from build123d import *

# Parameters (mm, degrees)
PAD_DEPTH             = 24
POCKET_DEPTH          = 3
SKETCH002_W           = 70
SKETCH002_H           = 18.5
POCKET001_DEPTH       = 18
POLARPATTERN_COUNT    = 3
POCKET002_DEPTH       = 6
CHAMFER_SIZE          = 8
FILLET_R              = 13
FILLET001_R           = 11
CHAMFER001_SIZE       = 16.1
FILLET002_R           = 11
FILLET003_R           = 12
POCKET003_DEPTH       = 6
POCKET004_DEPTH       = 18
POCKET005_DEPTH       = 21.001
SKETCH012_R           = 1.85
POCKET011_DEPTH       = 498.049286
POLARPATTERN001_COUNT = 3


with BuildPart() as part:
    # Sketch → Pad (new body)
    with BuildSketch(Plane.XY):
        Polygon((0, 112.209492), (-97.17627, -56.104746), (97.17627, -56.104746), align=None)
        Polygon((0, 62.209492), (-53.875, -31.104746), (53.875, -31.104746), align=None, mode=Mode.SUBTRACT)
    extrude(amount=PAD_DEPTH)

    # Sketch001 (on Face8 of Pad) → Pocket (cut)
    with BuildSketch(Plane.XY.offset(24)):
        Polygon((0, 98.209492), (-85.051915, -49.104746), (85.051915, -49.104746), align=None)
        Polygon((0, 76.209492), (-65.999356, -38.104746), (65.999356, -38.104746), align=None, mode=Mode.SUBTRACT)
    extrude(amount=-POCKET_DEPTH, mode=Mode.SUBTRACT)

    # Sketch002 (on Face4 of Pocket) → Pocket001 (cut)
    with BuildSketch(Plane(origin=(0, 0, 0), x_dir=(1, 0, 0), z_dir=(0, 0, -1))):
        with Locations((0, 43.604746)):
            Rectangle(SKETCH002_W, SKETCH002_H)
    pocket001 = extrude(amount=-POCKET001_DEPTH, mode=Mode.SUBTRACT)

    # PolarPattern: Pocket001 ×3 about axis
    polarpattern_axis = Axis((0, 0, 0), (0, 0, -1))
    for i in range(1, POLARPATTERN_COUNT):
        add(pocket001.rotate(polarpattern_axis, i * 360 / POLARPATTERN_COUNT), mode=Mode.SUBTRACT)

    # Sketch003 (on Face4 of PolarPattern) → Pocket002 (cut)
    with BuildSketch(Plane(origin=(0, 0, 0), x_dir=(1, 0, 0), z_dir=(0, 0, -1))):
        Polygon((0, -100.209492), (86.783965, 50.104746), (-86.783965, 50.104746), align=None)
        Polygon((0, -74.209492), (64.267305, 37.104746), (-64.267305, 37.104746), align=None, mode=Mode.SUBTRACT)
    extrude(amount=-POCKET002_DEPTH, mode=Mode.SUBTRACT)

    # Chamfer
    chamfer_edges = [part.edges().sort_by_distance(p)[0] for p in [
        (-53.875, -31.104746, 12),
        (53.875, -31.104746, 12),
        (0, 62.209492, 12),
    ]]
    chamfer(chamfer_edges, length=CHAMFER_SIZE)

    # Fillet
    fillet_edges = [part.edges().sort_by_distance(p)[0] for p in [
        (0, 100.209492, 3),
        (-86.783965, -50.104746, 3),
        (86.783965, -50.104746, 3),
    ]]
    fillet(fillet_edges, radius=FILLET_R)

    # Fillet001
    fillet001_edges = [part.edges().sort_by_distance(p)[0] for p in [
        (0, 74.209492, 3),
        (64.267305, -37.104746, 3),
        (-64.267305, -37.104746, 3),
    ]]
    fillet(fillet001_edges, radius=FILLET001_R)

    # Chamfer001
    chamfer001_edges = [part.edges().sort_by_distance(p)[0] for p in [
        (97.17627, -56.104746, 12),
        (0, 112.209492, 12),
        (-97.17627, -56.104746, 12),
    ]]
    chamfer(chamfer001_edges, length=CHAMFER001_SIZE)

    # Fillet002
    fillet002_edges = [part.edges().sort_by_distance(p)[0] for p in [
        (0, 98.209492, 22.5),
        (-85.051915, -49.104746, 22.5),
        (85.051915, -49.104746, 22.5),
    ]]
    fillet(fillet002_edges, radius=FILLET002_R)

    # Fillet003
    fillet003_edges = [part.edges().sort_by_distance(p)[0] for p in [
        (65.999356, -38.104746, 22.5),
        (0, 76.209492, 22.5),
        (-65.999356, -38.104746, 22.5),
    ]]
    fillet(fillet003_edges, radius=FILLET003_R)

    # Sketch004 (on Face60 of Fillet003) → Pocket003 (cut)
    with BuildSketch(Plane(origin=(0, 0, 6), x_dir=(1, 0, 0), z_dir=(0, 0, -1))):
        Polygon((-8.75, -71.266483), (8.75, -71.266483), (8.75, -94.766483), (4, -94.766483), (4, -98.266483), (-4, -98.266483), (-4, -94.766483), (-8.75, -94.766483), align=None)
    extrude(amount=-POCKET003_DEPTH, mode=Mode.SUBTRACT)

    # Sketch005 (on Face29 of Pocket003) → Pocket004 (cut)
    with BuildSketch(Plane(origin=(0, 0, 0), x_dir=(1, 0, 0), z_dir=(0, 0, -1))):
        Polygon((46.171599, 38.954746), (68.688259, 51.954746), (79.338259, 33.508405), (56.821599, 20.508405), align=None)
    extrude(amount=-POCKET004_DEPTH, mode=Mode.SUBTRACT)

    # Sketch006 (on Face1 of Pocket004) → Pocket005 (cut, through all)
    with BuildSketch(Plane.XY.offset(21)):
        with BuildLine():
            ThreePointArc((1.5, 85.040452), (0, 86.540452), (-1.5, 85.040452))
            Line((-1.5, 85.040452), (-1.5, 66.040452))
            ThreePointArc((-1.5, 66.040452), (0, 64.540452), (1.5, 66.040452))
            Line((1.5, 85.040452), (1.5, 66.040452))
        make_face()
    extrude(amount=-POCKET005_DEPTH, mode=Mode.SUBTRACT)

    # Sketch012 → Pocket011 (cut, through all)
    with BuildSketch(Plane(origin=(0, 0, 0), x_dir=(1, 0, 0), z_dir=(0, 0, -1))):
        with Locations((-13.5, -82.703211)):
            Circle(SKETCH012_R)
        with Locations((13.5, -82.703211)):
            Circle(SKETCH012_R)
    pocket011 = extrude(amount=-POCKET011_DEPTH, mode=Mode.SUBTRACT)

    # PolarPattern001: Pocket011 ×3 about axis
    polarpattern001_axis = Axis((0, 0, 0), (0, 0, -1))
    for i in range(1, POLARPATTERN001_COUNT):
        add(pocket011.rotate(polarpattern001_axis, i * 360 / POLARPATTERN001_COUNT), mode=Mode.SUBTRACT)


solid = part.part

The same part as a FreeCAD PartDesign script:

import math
import FreeCAD as App
import Part
import Sketcher
from FreeCAD import Vector
Q = App.Units.Quantity


def edges_at(feature, points):
    """Names of the edges that pass closest to the given points."""
    edges = feature.Shape.Edges
    near = lambda p: min(range(len(edges)), key=lambda i: edges[i].distToShape(Part.Vertex(*p))[0])
    return sorted({f"Edge{near(p) + 1}" for p in points})


def add_polygon(sketch, points):
    """Adds a closed chain of lines whose ends are joined by coincident constraints."""
    first, n = sketch.GeometryCount, len(points)
    for a, b in zip(points, points[1:] + points[:1]):
        sketch.addGeometry(Part.LineSegment(App.Vector(*a, 0), App.Vector(*b, 0)), False)
    for i in range(n):
        sketch.addConstraint(Sketcher.Constraint("Coincident", first + i, 2, first + (i + 1) % n, 1))

doc = App.newDocument("Part")
body = doc.addObject("PartDesign::Body", "Body")

sketch1 = body.newObject("Sketcher::SketchObject", "Sketch")
sketch1.AttachmentSupport = (doc.getObject("XY_Plane"), [""])
sketch1.MapMode = "FlatFace"
add_polygon(sketch1, [(0, 112), (-97, -56), (97, -56)])
add_polygon(sketch1, [(-54, -31), (0, 62), (54, -31)])
sketch1.addConstraint([
    Sketcher.Constraint("Horizontal", 1),
    Sketcher.Constraint("Horizontal", 5),
    Sketcher.Constraint("PointOnObject", 2, 2, -2),
    Sketcher.Constraint("PointOnObject", 3, 2, -2),
    Sketcher.Constraint("Parallel", 0, 3),
    Sketcher.Constraint("Parallel", 2, 4),
    Sketcher.Constraint("Equal", 0, 2),
    Sketcher.Constraint("Angle", 0, Q("-120 deg")),
    Sketcher.Constraint("DistanceY", 3, 2, 2, 2, 50.0),
    Sketcher.Constraint("DistanceY", 1, 2, 4, 2, 25.0),
    Sketcher.Constraint("DistanceX", 5, 2, 5, 1, 107.75),
    Sketcher.Constraint("DistanceY", -1, 1, 2, 2, 112.209492),
])
pad1 = body.newObject("PartDesign::Pad", "Pad")
pad1.Profile = sketch1
pad1.Length = 24

sketch2 = body.newObject("Sketcher::SketchObject", "Sketch001")
sketch2.AttachmentSupport = (doc.getObject("XY_Plane"), [""])
sketch2.MapMode = "FlatFace"
sketch2.AttachmentOffset = App.Placement(Vector(0, 0, 24), App.Rotation())
add_polygon(sketch2, [(0, 98), (-85, -49), (85, -49)])
add_polygon(sketch2, [(-66, -38), (0, 76), (66, -38)])
sketch2.addConstraint([
    Sketcher.Constraint("Horizontal", 1),
    Sketcher.Constraint("Horizontal", 5),
    Sketcher.Constraint("PointOnObject", 2, 2, -2),
    Sketcher.Constraint("PointOnObject", 3, 2, -2),
    Sketcher.Constraint("Parallel", 0, 3),
    Sketcher.Constraint("Parallel", 2, 4),
    Sketcher.Constraint("Equal", 0, 2),
    Sketcher.Constraint("Angle", 0, Q("-120 deg")),
    Sketcher.Constraint("DistanceY", 3, 2, 2, 2, 22.0),
    Sketcher.Constraint("DistanceY", 1, 2, 4, 2, 11.0),
    Sketcher.Constraint("DistanceX", 1, 1, 1, 2, 170.10383),
    Sketcher.Constraint("DistanceY", -1, 1, 2, 2, 98.209492),
])
pocket1 = body.newObject("PartDesign::Pocket", "Pocket")
pocket1.Profile = sketch2
pocket1.Length = 3

sketch3 = body.newObject("Sketcher::SketchObject", "Sketch002")
sketch3.AttachmentSupport = (doc.getObject("XY_Plane"), [""])
sketch3.MapMode = "FlatFace"
add_polygon(sketch3, [(-35, -53), (-35, -34), (35, -34), (35, -53)])
sketch3.addConstraint([
    Sketcher.Constraint("Vertical", 0),
    Sketcher.Constraint("Horizontal", 1),
    Sketcher.Constraint("Vertical", 2),
    Sketcher.Constraint("Horizontal", 3),
    Sketcher.Constraint("DistanceX", 1, 1, 1, 2, 70.0),
    Sketcher.Constraint("DistanceY", 0, 1, 0, 2, 18.5),
    Sketcher.Constraint("DistanceX", 0, 2, -1, 1, 35.0),
    Sketcher.Constraint("DistanceY", 0, 2, -1, 1, 34.354746),
])
pocket2 = body.newObject("PartDesign::Pocket", "Pocket001")
pocket2.Profile = sketch3
pocket2.Length = 18
pocket2.Reversed = True
doc.recompute()

polarpattern = body.newObject("PartDesign::PolarPattern", "PolarPattern")
polarpattern.Originals = [pocket2]
polarpattern.Axis = (doc.getObject("Z_Axis"), [""])
polarpattern.Angle = 360
polarpattern.Occurrences = 3
body.Tip = polarpattern

sketch4 = body.newObject("Sketcher::SketchObject", "Sketch003")
sketch4.AttachmentSupport = (doc.getObject("XY_Plane"), [""])
sketch4.MapMode = "FlatFace"
add_polygon(sketch4, [(0, 100), (87, -50), (-87, -50)])
add_polygon(sketch4, [(64, -37), (0, 74), (-64, -37)])
sketch4.addConstraint([
    Sketcher.Constraint("Horizontal", 1),
    Sketcher.Constraint("Horizontal", 5),
    Sketcher.Constraint("PointOnObject", 2, 2, -2),
    Sketcher.Constraint("PointOnObject", 3, 2, -2),
    Sketcher.Constraint("Parallel", 0, 3),
    Sketcher.Constraint("Parallel", 2, 4),
    Sketcher.Constraint("Equal", 0, 2),
    Sketcher.Constraint("Angle", 0, Q("-60 deg")),
    Sketcher.Constraint("DistanceY", 3, 2, 2, 2, 26.0),
    Sketcher.Constraint("DistanceY", 1, 2, 4, 2, 13.0),
    Sketcher.Constraint("DistanceX", 1, 2, 1, 1, 173.56793),
    Sketcher.Constraint("DistanceY", -1, 1, 2, 2, 100.209492),
])
pocket3 = body.newObject("PartDesign::Pocket", "Pocket002")
pocket3.Profile = sketch4
pocket3.Length = 6
pocket3.Reversed = True
doc.recompute()

chamfer = body.newObject("PartDesign::Chamfer", "Chamfer")
chamfer.Base = (pocket3, edges_at(pocket3, [(-53.875, -31.105, 12), (53.875, -31.105, 12), (0, 62.209, 12)]))
chamfer.Size = 8
doc.recompute()

fillet = body.newObject("PartDesign::Fillet", "Fillet")
fillet.Base = (chamfer, edges_at(chamfer, [(0, 100.209, 3), (-86.784, -50.105, 3), (86.784, -50.105, 3)]))
fillet.Radius = 13
doc.recompute()

fillet2 = body.newObject("PartDesign::Fillet", "Fillet001")
fillet2.Base = (fillet, edges_at(fillet, [(0, 74.209, 3), (64.267, -37.105, 3), (-64.267, -37.105, 3)]))
fillet2.Radius = 11
doc.recompute()

chamfer2 = body.newObject("PartDesign::Chamfer", "Chamfer001")
chamfer2.Base = (fillet2, edges_at(fillet2, [(97.176, -56.105, 12), (0, 112.209, 12), (-97.176, -56.105, 12)]))
chamfer2.Size = 16.1
doc.recompute()

fillet3 = body.newObject("PartDesign::Fillet", "Fillet002")
fillet3.Base = (chamfer2, edges_at(chamfer2, [(0, 98.209, 22.5), (-85.052, -49.105, 22.5), (85.052, -49.105, 22.5)]))
fillet3.Radius = 11
doc.recompute()

fillet4 = body.newObject("PartDesign::Fillet", "Fillet003")
fillet4.Base = (fillet3, edges_at(fillet3, [(65.999, -38.105, 22.5), (0, 76.209, 22.5), (-65.999, -38.105, 22.5)]))
fillet4.Radius = 12

sketch5 = body.newObject("Sketcher::SketchObject", "Sketch004")
sketch5.AttachmentSupport = (doc.getObject("XY_Plane"), [""])
sketch5.MapMode = "FlatFace"
sketch5.AttachmentOffset = App.Placement(Vector(0, 0, 6), App.Rotation())
add_polygon(sketch5, [(8.8, 71.3), (-8.8, 71.3), (-8.8, 94.8), (-4, 94.8), (-4, 98.3), (4, 98.3), (4, 94.8), (8.8, 94.8)])
sketch5.addConstraint([
    Sketcher.Constraint("Horizontal", 0),
    Sketcher.Constraint("Vertical", 1),
    Sketcher.Constraint("Horizontal", 2),
    Sketcher.Constraint("Vertical", 3),
    Sketcher.Constraint("Horizontal", 4),
    Sketcher.Constraint("Vertical", 5),
    Sketcher.Constraint("Horizontal", 6),
    Sketcher.Constraint("Vertical", 7),
    Sketcher.Constraint("Symmetric", 2, 2, 5, 2, -2),
    Sketcher.Constraint("Equal", 2, 6),
    Sketcher.Constraint("DistanceX", 4, 1, 4, 2, 8.0),
    Sketcher.Constraint("DistanceX", 0, 2, 0, 1, 17.5),
    Sketcher.Constraint("DistanceY", 1, 1, 1, 2, 23.5),
    Sketcher.Constraint("DistanceY", 3, 1, 3, 2, 3.5),
    Sketcher.Constraint("DistanceY", -1, 1, 0, 2, 71.266483),
])
pocket4 = body.newObject("PartDesign::Pocket", "Pocket003")
pocket4.Profile = sketch5
pocket4.Length = 6
pocket4.Reversed = True

sketch6 = body.newObject("Sketcher::SketchObject", "Sketch005")
sketch6.AttachmentSupport = (doc.getObject("XY_Plane"), [""])
sketch6.MapMode = "FlatFace"
add_polygon(sketch6, [(69, -52), (46, -39), (57, -21), (79, -34)])
sketch6.addConstraint([
    Sketcher.Constraint("Perpendicular", 0, 1),
    Sketcher.Constraint("Perpendicular", 1, 2),
    Sketcher.Constraint("Perpendicular", 2, 3),
    Sketcher.Constraint("Angle", 0, Q("149.999999 deg")),
    Sketcher.Constraint("Distance", 0, 26.0),
    Sketcher.Constraint("Distance", 1, 21.3),
    Sketcher.Constraint("DistanceX", -1, 1, 0, 2, 46.171599),
    Sketcher.Constraint("DistanceY", 0, 2, -1, 1, 38.954746),
])
pocket5 = body.newObject("PartDesign::Pocket", "Pocket004")
pocket5.Profile = sketch6
pocket5.Length = 18
pocket5.Reversed = True

sketch7 = body.newObject("Sketcher::SketchObject", "Sketch006")
sketch7.AttachmentSupport = (doc.getObject("XY_Plane"), [""])
sketch7.MapMode = "FlatFace"
sketch7.AttachmentOffset = App.Placement(Vector(0, 0, 21), App.Rotation())
sketch7.addGeometry([
    Part.ArcOfCircle(Part.Circle(Vector(0, 85, 0), Vector(0, 0, 1), 1.5), math.radians(0), math.radians(180)),
    Part.LineSegment(Vector(-1.5, 85, 0), Vector(-1.5, 66, 0)),
    Part.ArcOfCircle(Part.Circle(Vector(0, 66, 0), Vector(0, 0, 1), 1.5), math.radians(180), math.radians(360)),
    Part.LineSegment(Vector(1.5, 66, 0), Vector(1.5, 85, 0)),
], False)
sketch7.addConstraint([
    Sketcher.Constraint("Tangent", 0, 2, 1, 1),
    Sketcher.Constraint("Tangent", 1, 2, 2, 1),
    Sketcher.Constraint("Tangent", 2, 2, 3, 1),
    Sketcher.Constraint("Tangent", 3, 2, 0, 1),
    Sketcher.Constraint("Vertical", 1),
    Sketcher.Constraint("Vertical", 3),
    Sketcher.Constraint("PointOnObject", 0, 3, -2),
    Sketcher.Constraint("Radius", 0, 1.5),
    Sketcher.Constraint("DistanceY", 1, 2, 1, 1, 19.0),
    Sketcher.Constraint("DistanceY", -1, 1, 0, 3, 85.040452),
])
pocket6 = body.newObject("PartDesign::Pocket", "Pocket005")
pocket6.Profile = sketch7
pocket6.Type = "ThroughAll"

sketch8 = body.newObject("Sketcher::SketchObject", "Sketch007")
sketch8.AttachmentSupport = (doc.getObject("XY_Plane"), [""])
sketch8.MapMode = "FlatFace"
sketch8.addGeometry([
    Part.Circle(Vector(-13.5, 82.7, 0), Vector(0, 0, 1), 1.9),
    Part.Circle(Vector(13.5, 82.7, 0), Vector(0, 0, 1), 1.9),
], False)
sketch8.addConstraint([
    Sketcher.Constraint("Equal", 0, 1),
    Sketcher.Constraint("Symmetric", 0, 3, 1, 3, -2),
    Sketcher.Constraint("Diameter", 0, 3.7),
    Sketcher.Constraint("DistanceX", 0, 3, 1, 3, 27.0),
    Sketcher.Constraint("DistanceY", -1, 1, 0, 3, 82.703211),
])
pocket7 = body.newObject("PartDesign::Pocket", "Pocket006")
pocket7.Profile = sketch8
pocket7.Type = "ThroughAll"
pocket7.Reversed = True
doc.recompute()

polarpattern2 = body.newObject("PartDesign::PolarPattern", "PolarPattern001")
polarpattern2.Originals = [pocket7]
polarpattern2.Axis = (doc.getObject("Z_Axis"), [""])
polarpattern2.Angle = 360
polarpattern2.Occurrences = 3
body.Tip = polarpattern2

doc.recompute()
